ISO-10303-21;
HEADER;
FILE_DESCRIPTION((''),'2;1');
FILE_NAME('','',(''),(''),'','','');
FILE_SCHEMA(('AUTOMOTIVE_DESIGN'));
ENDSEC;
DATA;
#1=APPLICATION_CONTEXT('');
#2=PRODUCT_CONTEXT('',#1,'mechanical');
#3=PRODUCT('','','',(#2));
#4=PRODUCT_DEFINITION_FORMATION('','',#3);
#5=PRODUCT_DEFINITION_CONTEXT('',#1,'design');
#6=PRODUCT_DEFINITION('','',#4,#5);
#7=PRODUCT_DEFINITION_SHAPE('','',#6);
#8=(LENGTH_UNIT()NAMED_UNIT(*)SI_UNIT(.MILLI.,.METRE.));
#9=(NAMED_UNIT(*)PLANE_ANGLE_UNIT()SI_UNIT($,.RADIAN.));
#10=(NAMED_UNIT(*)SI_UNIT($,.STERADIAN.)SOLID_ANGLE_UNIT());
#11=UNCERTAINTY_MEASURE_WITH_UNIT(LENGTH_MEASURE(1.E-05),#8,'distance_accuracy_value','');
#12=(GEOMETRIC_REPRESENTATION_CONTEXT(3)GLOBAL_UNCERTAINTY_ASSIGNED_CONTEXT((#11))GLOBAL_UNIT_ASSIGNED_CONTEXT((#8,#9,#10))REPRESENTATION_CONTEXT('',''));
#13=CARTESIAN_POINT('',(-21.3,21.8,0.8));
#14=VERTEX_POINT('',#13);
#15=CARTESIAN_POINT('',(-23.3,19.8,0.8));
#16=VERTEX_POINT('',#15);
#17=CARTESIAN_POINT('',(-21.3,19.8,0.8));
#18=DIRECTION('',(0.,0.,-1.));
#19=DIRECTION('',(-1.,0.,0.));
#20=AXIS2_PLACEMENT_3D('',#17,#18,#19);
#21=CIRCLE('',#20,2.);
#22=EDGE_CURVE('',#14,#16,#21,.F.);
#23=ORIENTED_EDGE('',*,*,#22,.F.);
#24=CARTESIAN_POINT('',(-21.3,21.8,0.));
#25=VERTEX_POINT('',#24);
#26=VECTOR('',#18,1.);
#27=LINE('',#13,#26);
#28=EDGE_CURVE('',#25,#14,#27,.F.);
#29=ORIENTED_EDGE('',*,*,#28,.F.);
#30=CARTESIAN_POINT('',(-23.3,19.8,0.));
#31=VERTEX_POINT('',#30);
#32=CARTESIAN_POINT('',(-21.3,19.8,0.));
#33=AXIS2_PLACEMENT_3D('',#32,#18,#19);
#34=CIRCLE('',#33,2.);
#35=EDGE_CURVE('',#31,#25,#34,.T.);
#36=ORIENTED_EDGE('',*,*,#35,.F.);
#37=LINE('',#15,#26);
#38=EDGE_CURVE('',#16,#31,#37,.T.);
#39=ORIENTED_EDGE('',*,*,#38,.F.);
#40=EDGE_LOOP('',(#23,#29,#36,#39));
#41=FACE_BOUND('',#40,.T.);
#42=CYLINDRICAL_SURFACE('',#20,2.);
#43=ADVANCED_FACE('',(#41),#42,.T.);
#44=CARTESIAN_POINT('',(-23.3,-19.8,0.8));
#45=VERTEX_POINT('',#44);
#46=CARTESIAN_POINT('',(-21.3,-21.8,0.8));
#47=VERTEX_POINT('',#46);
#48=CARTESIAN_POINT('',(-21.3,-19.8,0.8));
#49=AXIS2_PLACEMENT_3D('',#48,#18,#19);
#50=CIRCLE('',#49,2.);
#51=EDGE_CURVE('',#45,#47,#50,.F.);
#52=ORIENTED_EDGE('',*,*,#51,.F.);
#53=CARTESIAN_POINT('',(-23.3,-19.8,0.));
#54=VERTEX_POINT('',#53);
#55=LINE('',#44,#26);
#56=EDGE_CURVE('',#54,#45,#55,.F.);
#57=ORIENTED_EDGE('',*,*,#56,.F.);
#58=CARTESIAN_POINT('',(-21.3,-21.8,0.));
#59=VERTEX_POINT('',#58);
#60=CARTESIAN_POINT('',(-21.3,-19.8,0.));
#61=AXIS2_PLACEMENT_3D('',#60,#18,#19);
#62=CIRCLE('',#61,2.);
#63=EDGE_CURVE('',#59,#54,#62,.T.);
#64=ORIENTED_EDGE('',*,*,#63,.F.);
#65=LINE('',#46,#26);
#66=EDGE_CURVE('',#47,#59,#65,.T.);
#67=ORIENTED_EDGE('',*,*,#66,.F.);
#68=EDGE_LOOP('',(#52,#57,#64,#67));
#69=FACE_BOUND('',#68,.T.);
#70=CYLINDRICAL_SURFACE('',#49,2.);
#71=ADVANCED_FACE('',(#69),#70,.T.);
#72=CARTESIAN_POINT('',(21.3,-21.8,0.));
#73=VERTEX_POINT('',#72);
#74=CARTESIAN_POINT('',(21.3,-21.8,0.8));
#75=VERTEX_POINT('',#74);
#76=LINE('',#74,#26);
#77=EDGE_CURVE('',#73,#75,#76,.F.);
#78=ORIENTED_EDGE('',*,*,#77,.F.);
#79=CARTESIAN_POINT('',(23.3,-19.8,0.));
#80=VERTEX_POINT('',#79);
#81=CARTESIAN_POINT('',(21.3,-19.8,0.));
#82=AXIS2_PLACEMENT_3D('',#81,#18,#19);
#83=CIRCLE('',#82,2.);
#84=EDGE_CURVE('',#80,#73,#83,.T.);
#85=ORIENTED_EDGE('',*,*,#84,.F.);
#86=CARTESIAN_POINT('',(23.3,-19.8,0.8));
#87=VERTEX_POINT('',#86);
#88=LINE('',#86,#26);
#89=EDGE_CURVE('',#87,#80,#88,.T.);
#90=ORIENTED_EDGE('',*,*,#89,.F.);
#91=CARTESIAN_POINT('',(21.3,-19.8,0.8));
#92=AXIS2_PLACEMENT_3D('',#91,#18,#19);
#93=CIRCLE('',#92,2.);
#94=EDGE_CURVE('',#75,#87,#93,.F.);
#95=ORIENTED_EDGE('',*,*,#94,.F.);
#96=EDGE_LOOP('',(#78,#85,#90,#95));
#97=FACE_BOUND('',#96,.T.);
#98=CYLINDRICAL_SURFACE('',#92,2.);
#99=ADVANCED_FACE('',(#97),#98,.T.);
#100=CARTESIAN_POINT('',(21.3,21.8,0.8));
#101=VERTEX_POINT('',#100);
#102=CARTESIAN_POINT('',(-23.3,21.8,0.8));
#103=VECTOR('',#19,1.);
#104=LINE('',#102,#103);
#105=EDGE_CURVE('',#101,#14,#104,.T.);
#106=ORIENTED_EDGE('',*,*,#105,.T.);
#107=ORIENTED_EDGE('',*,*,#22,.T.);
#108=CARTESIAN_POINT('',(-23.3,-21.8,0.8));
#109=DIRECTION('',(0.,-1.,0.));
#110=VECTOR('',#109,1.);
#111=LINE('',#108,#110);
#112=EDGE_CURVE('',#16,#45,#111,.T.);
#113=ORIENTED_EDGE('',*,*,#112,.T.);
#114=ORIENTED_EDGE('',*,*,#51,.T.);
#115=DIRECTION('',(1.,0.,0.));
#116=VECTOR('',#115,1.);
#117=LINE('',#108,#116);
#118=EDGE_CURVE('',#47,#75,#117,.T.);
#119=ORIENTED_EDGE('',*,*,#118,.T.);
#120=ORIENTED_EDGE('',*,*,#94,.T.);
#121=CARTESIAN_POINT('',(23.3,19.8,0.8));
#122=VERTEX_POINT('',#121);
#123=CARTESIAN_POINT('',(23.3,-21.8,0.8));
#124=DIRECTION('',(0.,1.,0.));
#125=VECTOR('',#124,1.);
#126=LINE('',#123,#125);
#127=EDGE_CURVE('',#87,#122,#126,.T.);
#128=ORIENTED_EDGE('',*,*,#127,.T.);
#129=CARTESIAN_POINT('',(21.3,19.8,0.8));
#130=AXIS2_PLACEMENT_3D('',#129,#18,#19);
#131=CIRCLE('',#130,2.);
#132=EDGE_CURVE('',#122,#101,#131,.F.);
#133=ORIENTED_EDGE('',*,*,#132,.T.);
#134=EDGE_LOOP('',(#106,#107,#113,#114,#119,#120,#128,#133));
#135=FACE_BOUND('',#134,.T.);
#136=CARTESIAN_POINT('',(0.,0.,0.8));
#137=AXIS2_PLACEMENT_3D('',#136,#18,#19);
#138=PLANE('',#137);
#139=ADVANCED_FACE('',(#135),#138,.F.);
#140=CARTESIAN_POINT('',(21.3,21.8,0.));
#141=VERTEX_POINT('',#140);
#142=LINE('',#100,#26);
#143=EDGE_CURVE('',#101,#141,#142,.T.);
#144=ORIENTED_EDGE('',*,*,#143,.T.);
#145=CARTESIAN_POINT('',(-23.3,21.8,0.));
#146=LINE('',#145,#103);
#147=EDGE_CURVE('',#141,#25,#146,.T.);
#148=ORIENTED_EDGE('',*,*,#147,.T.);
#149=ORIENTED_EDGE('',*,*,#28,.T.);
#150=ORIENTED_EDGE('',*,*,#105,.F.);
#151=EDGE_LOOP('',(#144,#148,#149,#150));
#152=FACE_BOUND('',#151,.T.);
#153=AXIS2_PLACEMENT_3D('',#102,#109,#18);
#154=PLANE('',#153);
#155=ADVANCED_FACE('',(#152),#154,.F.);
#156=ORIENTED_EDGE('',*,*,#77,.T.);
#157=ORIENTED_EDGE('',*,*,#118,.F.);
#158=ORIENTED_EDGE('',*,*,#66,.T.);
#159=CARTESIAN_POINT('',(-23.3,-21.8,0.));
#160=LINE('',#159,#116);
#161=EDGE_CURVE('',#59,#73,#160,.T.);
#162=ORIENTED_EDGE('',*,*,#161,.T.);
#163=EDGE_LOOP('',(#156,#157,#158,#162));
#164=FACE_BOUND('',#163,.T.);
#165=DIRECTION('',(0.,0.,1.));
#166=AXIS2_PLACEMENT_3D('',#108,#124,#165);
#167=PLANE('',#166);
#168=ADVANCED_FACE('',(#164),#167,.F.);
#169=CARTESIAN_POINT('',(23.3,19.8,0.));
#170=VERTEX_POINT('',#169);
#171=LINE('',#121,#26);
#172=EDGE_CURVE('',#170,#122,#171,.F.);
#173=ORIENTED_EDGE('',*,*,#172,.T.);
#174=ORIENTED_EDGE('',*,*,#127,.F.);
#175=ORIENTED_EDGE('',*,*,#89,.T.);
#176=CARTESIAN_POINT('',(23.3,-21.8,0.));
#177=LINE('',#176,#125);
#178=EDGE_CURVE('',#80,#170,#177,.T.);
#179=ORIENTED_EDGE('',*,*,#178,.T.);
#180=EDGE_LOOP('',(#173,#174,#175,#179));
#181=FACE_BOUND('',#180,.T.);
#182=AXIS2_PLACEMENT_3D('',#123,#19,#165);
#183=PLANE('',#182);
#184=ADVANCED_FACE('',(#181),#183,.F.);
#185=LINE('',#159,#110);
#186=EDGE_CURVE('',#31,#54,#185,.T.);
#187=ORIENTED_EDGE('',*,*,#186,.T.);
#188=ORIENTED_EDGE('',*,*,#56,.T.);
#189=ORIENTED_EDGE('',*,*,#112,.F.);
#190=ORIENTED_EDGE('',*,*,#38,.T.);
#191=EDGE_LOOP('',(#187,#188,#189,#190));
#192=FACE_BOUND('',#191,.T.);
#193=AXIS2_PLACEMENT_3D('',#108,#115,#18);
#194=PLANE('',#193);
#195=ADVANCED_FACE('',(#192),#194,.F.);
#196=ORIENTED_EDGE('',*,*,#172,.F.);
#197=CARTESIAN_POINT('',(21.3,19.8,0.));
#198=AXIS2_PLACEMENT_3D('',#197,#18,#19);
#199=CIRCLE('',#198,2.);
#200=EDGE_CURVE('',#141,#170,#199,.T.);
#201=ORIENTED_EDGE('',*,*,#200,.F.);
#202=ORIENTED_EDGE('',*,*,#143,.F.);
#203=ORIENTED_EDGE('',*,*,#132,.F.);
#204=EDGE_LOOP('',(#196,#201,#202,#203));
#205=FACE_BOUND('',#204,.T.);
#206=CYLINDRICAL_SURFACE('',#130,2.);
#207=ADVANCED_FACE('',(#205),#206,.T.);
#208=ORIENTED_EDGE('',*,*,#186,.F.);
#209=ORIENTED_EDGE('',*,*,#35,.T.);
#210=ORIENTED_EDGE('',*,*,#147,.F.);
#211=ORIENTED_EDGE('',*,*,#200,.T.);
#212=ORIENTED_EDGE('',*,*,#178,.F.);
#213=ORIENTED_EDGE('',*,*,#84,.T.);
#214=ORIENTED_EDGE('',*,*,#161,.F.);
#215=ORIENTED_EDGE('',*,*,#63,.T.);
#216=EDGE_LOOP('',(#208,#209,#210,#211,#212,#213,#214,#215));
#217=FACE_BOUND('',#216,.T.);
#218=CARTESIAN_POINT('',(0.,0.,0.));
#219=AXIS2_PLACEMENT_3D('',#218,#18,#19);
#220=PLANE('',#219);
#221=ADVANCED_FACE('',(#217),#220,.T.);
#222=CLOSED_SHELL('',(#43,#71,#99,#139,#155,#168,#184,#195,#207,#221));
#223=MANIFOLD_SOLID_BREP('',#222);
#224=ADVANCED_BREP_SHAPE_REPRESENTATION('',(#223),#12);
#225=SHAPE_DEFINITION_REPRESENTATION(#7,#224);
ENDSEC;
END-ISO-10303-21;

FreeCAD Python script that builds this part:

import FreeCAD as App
import Part
import Sketcher
Q = App.Units.Quantity


def edges_at(feature, points):
    """Names of the edges that pass closest to the given points."""
    edges = feature.Shape.Edges
    near = lambda p: min(range(len(edges)), key=lambda i: edges[i].distToShape(Part.Vertex(*p))[0])
    return sorted({f"Edge{near(p) + 1}" for p in points})


def add_polygon(sketch, points):
    """Adds a closed chain of lines whose ends are joined by coincident constraints."""
    first, n = sketch.GeometryCount, len(points)
    for a, b in zip(points, points[1:] + points[:1]):
        sketch.addGeometry(Part.LineSegment(App.Vector(*a, 0), App.Vector(*b, 0)), False)
    for i in range(n):
        sketch.addConstraint(Sketcher.Constraint("Coincident", first + i, 2, first + (i + 1) % n, 1))

doc = App.newDocument("Part")
body = doc.addObject("PartDesign::Body", "Body")

# Sketch on XY plane
sketch1 = doc.addObject("Sketcher::SketchObject", "Sketch")
body.addObject(sketch1)
sketch1.AttachmentSupport = (doc.XY_Plane, [""])
sketch1.MapMode = "FlatFace"
add_polygon(sketch1, [(-23.3, 21.8), (-23.3, -21.8), (23.3, -21.8), (23.3, 21.8)])  # lines 0-3
sketch1.addConstraint([
    Sketcher.Constraint("Vertical", 0),
    Sketcher.Constraint("Horizontal", 1),
    Sketcher.Constraint("Vertical", 2),
    Sketcher.Constraint("Horizontal", 3),
    Sketcher.Constraint("Symmetric", 0, 2, 2, 2, -1, 1),
    Sketcher.Constraint("DistanceX", 1, 1, 1, 2, Q("46.6 mm")),
    Sketcher.Constraint("DistanceY", 0, 2, 0, 1, Q("43.6 mm")),
])
pad1 = doc.addObject("PartDesign::Pad", "Pad")
body.addObject(pad1)
pad1.Profile = sketch1
pad1.Length = 0.8
doc.recompute()

fillet = doc.addObject("PartDesign::Fillet", "Fillet")
body.addObject(fillet)
fillet.Base = (pad1, edges_at(pad1, [
    (23.3, -21.8, 0.4),
    (-23.3, -21.8, 0.4),
    (-23.3, 21.8, 0.4),
    (23.3, 21.8, 0.4),
]))
fillet.Radius = 2

doc.recompute()
